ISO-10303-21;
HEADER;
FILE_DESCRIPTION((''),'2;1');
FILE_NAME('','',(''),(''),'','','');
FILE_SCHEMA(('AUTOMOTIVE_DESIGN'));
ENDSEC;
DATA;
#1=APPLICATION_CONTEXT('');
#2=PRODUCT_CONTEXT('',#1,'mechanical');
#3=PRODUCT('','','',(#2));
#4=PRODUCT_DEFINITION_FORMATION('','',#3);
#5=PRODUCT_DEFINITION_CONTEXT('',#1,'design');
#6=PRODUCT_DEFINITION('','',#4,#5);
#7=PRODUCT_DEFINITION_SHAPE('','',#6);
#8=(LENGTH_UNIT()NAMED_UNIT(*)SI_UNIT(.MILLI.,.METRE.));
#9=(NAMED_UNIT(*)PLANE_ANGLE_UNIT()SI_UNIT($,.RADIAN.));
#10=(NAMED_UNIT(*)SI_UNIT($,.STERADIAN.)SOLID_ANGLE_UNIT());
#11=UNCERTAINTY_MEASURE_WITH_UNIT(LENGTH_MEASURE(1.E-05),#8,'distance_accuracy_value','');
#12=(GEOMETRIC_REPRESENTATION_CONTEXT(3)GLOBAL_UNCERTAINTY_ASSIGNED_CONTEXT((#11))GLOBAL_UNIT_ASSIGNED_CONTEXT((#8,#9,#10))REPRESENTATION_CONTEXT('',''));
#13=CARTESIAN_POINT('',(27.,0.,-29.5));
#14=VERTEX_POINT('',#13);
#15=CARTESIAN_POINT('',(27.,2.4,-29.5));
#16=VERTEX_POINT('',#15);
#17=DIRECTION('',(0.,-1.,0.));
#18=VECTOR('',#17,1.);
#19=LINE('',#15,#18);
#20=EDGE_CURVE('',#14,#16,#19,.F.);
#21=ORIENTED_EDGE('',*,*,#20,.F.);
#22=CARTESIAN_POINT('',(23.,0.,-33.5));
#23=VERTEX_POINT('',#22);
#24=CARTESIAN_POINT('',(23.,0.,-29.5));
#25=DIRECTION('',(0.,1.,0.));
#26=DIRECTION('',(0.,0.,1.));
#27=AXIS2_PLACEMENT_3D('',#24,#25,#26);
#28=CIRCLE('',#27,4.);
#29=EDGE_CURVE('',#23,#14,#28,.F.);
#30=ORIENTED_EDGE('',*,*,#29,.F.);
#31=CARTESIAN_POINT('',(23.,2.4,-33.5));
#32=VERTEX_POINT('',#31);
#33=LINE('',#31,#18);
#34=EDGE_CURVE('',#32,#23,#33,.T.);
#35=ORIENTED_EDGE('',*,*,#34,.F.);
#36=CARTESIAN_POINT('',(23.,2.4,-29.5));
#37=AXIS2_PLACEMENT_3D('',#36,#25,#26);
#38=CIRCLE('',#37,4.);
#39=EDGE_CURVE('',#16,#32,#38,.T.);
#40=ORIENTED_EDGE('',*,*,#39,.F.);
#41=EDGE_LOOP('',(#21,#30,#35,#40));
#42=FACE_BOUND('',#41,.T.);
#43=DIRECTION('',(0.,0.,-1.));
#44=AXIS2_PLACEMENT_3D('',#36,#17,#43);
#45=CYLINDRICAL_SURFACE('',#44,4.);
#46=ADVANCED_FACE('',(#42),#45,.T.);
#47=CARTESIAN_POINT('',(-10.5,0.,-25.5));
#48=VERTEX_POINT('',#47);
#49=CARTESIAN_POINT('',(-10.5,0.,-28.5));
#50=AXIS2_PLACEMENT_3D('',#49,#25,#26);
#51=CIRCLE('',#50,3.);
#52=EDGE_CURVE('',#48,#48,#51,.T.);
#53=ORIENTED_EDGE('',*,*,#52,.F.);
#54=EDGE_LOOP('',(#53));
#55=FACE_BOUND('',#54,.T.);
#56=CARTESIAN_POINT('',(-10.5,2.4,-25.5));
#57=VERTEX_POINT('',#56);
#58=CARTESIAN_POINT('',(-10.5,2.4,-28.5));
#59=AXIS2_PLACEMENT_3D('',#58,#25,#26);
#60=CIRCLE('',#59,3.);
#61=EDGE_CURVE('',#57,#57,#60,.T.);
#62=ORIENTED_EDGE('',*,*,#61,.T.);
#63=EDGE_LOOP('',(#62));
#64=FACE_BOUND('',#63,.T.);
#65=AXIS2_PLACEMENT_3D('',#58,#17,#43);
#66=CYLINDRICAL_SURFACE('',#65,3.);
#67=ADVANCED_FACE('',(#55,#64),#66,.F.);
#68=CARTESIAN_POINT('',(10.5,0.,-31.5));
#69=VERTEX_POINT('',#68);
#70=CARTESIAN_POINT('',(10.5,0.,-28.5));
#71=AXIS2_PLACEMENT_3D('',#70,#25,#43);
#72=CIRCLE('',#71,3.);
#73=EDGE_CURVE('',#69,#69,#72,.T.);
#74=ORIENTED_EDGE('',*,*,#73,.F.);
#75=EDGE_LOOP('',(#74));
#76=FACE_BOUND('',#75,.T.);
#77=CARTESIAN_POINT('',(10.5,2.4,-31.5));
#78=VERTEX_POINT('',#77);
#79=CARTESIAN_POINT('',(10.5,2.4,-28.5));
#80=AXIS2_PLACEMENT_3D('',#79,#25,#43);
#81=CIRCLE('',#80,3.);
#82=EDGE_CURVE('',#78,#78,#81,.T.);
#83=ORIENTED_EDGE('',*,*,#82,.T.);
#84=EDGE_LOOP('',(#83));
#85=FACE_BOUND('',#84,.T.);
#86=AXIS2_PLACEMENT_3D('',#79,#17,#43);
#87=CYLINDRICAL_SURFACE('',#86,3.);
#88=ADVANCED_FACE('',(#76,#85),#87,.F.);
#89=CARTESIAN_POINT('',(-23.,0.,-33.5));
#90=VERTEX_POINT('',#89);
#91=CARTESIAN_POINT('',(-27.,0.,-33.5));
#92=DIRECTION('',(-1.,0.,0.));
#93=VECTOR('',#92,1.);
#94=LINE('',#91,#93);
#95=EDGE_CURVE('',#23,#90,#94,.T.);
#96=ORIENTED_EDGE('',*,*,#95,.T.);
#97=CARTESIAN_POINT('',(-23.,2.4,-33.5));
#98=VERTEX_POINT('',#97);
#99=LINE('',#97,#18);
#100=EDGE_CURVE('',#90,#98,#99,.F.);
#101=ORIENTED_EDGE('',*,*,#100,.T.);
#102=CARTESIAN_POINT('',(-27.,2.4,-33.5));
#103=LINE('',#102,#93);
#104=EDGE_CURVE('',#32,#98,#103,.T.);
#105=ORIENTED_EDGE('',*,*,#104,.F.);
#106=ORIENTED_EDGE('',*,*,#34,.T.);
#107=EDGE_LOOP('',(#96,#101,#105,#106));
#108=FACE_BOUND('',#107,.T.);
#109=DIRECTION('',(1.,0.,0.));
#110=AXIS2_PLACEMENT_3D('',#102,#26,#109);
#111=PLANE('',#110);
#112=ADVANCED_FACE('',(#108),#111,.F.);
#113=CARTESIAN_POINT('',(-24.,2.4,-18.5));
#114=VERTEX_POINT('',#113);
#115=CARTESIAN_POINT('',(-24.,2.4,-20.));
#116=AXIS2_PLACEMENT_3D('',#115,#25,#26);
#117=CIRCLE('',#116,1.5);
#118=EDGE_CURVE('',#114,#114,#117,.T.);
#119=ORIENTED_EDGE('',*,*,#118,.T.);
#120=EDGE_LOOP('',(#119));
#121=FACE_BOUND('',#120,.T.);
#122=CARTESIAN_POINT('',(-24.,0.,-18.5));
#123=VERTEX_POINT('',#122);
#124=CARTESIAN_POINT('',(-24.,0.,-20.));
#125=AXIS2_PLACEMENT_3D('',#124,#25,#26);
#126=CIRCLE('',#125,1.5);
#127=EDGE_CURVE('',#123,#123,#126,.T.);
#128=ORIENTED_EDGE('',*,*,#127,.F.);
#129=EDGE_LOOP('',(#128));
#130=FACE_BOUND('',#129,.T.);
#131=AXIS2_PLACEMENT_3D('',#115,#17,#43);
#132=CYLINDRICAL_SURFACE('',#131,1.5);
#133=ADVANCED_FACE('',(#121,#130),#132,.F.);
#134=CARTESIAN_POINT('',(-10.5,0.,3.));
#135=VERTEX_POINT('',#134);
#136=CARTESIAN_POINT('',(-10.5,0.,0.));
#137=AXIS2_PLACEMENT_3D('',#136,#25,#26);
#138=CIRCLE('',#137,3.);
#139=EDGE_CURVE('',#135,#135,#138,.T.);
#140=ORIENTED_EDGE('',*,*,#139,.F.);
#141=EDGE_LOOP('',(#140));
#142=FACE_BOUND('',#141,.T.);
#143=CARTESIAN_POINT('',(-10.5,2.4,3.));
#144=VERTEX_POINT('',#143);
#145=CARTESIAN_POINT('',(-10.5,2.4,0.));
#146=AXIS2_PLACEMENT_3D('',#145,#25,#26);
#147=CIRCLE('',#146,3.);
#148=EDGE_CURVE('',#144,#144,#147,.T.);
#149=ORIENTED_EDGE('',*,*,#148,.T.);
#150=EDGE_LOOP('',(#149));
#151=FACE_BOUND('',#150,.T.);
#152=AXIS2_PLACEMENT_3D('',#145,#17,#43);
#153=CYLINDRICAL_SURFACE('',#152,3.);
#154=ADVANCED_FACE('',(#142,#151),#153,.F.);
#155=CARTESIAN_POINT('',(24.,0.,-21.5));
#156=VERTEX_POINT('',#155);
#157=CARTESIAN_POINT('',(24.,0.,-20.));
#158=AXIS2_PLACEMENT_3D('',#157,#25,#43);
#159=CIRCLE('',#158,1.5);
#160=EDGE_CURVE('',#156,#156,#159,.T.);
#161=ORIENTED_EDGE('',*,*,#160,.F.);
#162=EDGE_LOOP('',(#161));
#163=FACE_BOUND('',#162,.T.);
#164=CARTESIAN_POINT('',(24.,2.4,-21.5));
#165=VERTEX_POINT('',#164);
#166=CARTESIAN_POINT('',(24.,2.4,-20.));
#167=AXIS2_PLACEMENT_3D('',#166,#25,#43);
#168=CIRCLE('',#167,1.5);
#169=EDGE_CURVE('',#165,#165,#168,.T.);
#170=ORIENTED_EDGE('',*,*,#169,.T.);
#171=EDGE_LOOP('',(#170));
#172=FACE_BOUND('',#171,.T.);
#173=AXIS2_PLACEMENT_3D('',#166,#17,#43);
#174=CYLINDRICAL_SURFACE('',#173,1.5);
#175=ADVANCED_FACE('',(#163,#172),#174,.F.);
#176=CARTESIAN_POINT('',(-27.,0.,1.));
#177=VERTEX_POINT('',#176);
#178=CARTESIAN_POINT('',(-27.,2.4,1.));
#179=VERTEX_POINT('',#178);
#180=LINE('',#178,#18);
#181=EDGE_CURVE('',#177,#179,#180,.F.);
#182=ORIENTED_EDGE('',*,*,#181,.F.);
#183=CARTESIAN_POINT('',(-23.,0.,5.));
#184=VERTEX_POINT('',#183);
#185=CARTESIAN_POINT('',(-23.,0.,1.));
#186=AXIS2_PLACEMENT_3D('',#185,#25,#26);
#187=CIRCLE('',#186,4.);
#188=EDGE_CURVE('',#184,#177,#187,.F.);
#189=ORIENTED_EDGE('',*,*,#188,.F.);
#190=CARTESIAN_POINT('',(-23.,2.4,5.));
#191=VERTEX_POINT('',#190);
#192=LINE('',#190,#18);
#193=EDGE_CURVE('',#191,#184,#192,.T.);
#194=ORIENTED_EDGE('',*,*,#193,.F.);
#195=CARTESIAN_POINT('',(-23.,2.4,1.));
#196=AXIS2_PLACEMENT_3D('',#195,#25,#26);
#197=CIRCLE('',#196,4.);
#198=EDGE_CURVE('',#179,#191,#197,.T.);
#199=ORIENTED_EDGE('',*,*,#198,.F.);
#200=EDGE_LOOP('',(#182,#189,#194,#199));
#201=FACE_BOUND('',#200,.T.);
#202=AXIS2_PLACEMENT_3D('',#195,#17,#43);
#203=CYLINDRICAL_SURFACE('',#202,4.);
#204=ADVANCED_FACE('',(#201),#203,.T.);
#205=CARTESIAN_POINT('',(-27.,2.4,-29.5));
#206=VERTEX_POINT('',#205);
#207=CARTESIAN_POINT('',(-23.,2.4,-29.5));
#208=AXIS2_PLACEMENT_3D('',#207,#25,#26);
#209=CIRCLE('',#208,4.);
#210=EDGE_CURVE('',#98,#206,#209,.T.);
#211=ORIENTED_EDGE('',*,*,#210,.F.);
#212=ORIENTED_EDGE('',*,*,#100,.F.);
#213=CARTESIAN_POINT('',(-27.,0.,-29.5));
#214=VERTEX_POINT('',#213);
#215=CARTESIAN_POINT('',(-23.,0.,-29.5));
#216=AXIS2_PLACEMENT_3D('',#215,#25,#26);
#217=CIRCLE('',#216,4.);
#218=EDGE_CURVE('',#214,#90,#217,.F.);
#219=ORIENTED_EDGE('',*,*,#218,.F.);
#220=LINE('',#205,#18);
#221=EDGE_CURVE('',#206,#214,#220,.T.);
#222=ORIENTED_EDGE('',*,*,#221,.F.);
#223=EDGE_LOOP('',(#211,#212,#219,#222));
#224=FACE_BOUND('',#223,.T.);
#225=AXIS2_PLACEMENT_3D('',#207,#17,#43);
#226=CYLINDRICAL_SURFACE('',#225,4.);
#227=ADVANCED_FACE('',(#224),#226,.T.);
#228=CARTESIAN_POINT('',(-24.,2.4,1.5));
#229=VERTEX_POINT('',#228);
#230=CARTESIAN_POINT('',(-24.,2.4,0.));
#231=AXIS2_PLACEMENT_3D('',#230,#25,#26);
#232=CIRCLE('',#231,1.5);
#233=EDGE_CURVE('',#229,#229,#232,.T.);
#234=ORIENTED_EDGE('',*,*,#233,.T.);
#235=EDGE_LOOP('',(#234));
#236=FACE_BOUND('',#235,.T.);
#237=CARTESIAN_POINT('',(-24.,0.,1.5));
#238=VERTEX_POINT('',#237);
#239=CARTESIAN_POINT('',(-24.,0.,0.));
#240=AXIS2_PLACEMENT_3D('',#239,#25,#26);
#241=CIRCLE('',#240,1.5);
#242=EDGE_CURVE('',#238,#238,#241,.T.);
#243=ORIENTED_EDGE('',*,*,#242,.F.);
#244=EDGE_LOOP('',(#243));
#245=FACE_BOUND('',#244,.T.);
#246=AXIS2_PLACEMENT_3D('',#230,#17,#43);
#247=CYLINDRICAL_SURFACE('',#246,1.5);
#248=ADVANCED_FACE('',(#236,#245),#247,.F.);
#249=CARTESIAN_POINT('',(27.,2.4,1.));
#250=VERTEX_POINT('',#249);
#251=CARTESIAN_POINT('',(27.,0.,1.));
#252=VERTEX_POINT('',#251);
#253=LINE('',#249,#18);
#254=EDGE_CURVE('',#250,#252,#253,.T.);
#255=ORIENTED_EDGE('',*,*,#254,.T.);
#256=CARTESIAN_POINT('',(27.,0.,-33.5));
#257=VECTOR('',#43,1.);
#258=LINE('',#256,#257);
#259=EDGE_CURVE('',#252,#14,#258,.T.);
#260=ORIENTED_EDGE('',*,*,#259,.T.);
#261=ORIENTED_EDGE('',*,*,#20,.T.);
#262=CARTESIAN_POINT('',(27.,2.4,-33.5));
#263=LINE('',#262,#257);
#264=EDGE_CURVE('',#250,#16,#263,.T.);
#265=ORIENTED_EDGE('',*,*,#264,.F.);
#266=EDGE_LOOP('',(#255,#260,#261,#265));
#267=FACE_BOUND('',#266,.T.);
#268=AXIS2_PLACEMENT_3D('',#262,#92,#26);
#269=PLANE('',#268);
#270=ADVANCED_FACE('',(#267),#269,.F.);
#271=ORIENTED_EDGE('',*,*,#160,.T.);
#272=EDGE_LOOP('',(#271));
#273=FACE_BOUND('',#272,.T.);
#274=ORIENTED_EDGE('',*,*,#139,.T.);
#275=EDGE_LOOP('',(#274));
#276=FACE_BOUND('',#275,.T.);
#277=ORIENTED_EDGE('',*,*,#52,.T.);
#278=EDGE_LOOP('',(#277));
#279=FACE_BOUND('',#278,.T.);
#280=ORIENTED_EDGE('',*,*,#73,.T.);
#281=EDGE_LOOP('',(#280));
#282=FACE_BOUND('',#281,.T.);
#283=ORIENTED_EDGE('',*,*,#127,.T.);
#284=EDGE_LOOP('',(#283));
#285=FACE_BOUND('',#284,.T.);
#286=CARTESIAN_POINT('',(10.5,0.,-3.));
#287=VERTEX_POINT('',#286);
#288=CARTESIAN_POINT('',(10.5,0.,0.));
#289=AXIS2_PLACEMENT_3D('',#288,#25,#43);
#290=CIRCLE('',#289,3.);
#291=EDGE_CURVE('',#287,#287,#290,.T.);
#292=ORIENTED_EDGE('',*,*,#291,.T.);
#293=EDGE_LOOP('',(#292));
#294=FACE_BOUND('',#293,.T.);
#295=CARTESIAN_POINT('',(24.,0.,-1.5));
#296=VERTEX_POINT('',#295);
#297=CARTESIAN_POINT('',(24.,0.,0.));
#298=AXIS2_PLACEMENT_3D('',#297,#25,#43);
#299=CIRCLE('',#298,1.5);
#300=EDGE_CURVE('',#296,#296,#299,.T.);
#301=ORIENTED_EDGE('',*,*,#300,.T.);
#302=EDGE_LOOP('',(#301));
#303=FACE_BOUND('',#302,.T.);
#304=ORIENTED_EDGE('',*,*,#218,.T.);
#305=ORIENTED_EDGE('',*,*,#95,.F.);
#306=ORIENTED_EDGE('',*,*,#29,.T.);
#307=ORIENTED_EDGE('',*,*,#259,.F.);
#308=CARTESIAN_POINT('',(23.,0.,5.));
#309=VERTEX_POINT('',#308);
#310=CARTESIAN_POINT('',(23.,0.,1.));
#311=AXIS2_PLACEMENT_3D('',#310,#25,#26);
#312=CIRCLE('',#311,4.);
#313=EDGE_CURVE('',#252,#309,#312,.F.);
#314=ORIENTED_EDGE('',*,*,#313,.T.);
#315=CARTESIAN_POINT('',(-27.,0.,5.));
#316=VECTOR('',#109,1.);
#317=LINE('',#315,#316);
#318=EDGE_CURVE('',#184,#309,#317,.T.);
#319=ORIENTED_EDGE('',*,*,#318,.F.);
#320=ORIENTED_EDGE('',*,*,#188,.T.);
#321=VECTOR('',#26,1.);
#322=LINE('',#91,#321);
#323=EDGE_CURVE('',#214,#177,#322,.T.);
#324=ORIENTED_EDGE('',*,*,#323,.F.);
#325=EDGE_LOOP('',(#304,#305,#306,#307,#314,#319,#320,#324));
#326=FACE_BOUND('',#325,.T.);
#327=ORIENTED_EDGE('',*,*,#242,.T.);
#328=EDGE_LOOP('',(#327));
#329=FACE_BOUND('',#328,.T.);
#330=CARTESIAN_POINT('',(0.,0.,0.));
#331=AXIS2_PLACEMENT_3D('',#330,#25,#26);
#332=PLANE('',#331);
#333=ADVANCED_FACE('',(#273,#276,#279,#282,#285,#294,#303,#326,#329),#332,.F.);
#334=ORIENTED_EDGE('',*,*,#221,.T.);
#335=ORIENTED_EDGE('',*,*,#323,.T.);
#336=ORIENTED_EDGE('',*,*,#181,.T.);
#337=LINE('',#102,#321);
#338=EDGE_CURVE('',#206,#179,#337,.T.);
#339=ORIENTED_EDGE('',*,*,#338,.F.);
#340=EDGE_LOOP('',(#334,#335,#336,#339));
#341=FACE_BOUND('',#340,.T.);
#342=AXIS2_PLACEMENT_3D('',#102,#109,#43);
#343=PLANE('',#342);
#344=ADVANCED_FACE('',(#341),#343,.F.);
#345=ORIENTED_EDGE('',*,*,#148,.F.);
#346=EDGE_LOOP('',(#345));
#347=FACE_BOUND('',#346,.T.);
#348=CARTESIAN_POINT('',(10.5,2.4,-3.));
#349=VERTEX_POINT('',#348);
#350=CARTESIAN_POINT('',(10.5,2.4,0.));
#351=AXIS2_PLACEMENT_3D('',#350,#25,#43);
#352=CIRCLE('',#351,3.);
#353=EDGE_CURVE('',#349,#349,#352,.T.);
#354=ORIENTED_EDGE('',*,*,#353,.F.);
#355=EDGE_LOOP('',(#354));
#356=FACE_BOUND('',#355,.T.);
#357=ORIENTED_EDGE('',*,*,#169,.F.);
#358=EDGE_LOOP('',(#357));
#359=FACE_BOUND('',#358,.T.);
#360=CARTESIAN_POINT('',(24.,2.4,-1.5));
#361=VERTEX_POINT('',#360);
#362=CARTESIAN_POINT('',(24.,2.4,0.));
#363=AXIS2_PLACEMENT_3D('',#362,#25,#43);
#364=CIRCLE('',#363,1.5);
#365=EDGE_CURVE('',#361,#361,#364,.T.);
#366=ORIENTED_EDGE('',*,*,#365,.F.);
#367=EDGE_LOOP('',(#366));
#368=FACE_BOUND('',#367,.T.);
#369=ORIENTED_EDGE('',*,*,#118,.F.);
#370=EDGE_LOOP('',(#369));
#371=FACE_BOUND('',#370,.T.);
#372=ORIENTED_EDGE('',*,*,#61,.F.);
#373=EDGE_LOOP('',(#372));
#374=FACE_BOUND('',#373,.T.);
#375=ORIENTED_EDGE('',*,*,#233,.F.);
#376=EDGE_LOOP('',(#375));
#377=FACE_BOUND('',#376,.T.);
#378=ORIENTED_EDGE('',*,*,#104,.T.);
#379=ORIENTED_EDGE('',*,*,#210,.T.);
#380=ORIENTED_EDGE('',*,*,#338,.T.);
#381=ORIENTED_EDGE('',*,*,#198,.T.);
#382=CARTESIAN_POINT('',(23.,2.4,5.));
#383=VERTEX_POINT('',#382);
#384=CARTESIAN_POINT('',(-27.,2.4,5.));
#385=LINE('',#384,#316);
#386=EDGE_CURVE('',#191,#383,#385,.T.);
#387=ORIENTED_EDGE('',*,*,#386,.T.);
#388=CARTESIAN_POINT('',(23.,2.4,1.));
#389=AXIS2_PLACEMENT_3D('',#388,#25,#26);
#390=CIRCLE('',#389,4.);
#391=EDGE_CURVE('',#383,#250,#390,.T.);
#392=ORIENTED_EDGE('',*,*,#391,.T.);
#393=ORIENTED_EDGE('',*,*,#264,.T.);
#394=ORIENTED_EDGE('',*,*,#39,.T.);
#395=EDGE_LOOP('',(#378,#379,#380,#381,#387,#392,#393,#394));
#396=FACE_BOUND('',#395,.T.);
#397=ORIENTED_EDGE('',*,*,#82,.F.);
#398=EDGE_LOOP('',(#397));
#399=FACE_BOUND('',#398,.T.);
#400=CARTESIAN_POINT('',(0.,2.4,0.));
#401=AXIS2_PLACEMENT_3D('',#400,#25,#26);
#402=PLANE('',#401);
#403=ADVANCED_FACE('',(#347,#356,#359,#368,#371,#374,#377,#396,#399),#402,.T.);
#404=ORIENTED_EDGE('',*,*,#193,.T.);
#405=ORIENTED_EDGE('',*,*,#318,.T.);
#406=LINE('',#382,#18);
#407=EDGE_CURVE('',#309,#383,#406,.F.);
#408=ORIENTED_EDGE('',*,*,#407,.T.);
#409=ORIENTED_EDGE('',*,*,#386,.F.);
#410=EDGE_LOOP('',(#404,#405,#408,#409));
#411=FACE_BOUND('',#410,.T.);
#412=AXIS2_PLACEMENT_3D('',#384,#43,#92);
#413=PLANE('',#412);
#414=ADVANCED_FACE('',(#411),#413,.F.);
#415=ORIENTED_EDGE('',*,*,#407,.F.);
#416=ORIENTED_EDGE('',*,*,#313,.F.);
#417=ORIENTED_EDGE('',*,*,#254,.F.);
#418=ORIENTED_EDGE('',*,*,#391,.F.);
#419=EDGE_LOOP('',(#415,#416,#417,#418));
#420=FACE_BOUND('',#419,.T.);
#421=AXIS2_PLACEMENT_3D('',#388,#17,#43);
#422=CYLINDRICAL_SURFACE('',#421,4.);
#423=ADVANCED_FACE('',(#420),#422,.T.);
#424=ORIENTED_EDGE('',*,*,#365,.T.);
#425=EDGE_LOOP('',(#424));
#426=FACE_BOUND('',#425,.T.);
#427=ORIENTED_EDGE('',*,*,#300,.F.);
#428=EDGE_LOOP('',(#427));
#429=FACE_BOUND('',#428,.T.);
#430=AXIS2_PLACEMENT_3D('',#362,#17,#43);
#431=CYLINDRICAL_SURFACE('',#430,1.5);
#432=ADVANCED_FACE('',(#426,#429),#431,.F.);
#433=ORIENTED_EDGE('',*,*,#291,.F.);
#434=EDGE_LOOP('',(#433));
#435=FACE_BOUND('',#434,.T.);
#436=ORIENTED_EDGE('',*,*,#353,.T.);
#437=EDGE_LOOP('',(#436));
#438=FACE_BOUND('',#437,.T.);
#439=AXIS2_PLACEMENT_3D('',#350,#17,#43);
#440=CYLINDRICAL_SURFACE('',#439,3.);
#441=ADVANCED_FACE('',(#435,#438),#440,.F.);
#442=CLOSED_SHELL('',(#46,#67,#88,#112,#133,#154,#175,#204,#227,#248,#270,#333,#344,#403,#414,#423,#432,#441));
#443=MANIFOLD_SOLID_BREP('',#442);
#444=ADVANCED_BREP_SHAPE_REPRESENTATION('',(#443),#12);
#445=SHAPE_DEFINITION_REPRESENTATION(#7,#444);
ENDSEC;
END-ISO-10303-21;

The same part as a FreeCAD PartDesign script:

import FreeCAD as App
import Part
import Sketcher
Q = App.Units.Quantity


def edges_at(feature, points):
    """Names of the edges that pass closest to the given points."""
    edges = feature.Shape.Edges
    near = lambda p: min(range(len(edges)), key=lambda i: edges[i].distToShape(Part.Vertex(*p))[0])
    return sorted({f"Edge{near(p) + 1}" for p in points})

doc = App.newDocument("Part")
body = doc.addObject("PartDesign::Body", "Body")

# Sketch on XZ plane
sketch1 = body.newObject("Sketcher::SketchObject", "Sketch")
sketch1.AttachmentSupport = (doc.getObject("XZ_Plane"), [""])
sketch1.MapMode = "FlatFace"
sketch1.addGeometry(Part.LineSegment(App.Vector(-27, -33.5, 0), App.Vector(-27, 5, 0)), False)
sketch1.addGeometry(Part.LineSegment(App.Vector(-27, 5, 0), App.Vector(27, 5, 0)), False)
sketch1.addGeometry(Part.LineSegment(App.Vector(27, 5, 0), App.Vector(27, -33.5, 0)), False)
sketch1.addGeometry(Part.LineSegment(App.Vector(27, -33.5, 0), App.Vector(-27, -33.5, 0)), False)
sketch1.addGeometry(Part.Circle(App.Vector(-24, 0, 0), App.Vector(0, 0, 1), 1.5), False)
sketch1.addGeometry(Part.Circle(App.Vector(-10.5, 0, 0), App.Vector(0, 0, 1), 3), False)
sketch1.addGeometry(Part.Circle(App.Vector(10.5, 0, 0), App.Vector(0, 0, 1), 3), False)
sketch1.addGeometry(Part.Circle(App.Vector(24, 0, 0), App.Vector(0, 0, 1), 1.5), False)
sketch1.addGeometry(Part.Circle(App.Vector(-24, -20, 0), App.Vector(0, 0, 1), 1.5), False)
sketch1.addGeometry(Part.Circle(App.Vector(-10.5, -28.5, 0), App.Vector(0, 0, 1), 3), False)
sketch1.addGeometry(Part.Circle(App.Vector(24, -20, 0), App.Vector(0, 0, 1), 1.5), False)
sketch1.addGeometry(Part.Circle(App.Vector(10.5, -28.5, 0), App.Vector(0, 0, 1), 3), False)
sketch1.addConstraint(Sketcher.Constraint("Coincident", 0, 2, 1, 1))
sketch1.addConstraint(Sketcher.Constraint("Coincident", 1, 2, 2, 1))
sketch1.addConstraint(Sketcher.Constraint("Coincident", 2, 2, 3, 1))
sketch1.addConstraint(Sketcher.Constraint("Coincident", 3, 2, 0, 1))
sketch1.addConstraint(Sketcher.Constraint("Vertical", 0))
sketch1.addConstraint(Sketcher.Constraint("Horizontal", 1))
sketch1.addConstraint(Sketcher.Constraint("Vertical", 2))
sketch1.addConstraint(Sketcher.Constraint("Horizontal", 3))
sketch1.addConstraint(Sketcher.Constraint("Equal", 5, 6))
sketch1.addConstraint(Sketcher.Constraint("Equal", 4, 7))
sketch1.addConstraint(Sketcher.Constraint("Equal", 7, 8))
sketch1.addConstraint(Sketcher.Constraint("Equal", 6, 9))
sketch1.addConstraint(Sketcher.Constraint("Equal", 8, 10))
sketch1.addConstraint(Sketcher.Constraint("Equal", 9, 11))
sketch1.addConstraint(Sketcher.Constraint("Symmetric", 5, 3, 6, 3, -1, 1))
sketch1.addConstraint(Sketcher.Constraint("Symmetric", 4, 3, 7, 3, -1, 1))
sketch1.addConstraint(Sketcher.Constraint("Symmetric", 8, 3, 10, 3, -2))
sketch1.addConstraint(Sketcher.Constraint("Symmetric", 9, 3, 11, 3, -2))
sketch1.addConstraint(Sketcher.Constraint("PointOnObject", 4, 3, -1))
sketch1.addConstraint(Sketcher.Constraint("PointOnObject", 5, 3, -1))
sketch1.addConstraint(Sketcher.Constraint("Vertical", 4, 3, 8, 3))
sketch1.addConstraint(Sketcher.Constraint("Vertical", 5, 3, 9, 3))
sketch1.addConstraint(Sketcher.Constraint("Diameter", 4, Q("3 mm")))
sketch1.addConstraint(Sketcher.Constraint("Diameter", 5, Q("6 mm")))
sketch1.addConstraint(Sketcher.Constraint("DistanceX", 1, 1, 1, 2, Q("54 mm")))
sketch1.addConstraint(Sketcher.Constraint("DistanceY", 0, 1, 0, 2, Q("38.5 mm")))
sketch1.addConstraint(Sketcher.Constraint("DistanceX", 4, 3, -1, 1, Q("24 mm")))
sketch1.addConstraint(Sketcher.Constraint("DistanceY", 8, 3, -1, 1, Q("20 mm")))
sketch1.addConstraint(Sketcher.Constraint("DistanceX", 0, 2, -1, 1, Q("27 mm")))
sketch1.addConstraint(Sketcher.Constraint("DistanceY", -1, 1, 0, 2, Q("5 mm")))
sketch1.addConstraint(Sketcher.Constraint("DistanceX", 5, 3, 6, 3, Q("21 mm")))
sketch1.addConstraint(Sketcher.Constraint("DistanceY", 2, 2, 11, 3, Q("5 mm")))
pad1 = body.newObject("PartDesign::Pad", "Pad")
pad1.Profile = sketch1
pad1.Length = 2.4
pad1.Reversed = True
doc.recompute()

fillet = body.newObject("PartDesign::Fillet", "Fillet")
fillet.Base = (pad1, edges_at(pad1, [
    (27, 1.2, 5),
    (-27, 1.2, 5),
    (-27, 1.2, -33.5),
    (27, 1.2, -33.5),
]))
fillet.Radius = 4

doc.recompute()
